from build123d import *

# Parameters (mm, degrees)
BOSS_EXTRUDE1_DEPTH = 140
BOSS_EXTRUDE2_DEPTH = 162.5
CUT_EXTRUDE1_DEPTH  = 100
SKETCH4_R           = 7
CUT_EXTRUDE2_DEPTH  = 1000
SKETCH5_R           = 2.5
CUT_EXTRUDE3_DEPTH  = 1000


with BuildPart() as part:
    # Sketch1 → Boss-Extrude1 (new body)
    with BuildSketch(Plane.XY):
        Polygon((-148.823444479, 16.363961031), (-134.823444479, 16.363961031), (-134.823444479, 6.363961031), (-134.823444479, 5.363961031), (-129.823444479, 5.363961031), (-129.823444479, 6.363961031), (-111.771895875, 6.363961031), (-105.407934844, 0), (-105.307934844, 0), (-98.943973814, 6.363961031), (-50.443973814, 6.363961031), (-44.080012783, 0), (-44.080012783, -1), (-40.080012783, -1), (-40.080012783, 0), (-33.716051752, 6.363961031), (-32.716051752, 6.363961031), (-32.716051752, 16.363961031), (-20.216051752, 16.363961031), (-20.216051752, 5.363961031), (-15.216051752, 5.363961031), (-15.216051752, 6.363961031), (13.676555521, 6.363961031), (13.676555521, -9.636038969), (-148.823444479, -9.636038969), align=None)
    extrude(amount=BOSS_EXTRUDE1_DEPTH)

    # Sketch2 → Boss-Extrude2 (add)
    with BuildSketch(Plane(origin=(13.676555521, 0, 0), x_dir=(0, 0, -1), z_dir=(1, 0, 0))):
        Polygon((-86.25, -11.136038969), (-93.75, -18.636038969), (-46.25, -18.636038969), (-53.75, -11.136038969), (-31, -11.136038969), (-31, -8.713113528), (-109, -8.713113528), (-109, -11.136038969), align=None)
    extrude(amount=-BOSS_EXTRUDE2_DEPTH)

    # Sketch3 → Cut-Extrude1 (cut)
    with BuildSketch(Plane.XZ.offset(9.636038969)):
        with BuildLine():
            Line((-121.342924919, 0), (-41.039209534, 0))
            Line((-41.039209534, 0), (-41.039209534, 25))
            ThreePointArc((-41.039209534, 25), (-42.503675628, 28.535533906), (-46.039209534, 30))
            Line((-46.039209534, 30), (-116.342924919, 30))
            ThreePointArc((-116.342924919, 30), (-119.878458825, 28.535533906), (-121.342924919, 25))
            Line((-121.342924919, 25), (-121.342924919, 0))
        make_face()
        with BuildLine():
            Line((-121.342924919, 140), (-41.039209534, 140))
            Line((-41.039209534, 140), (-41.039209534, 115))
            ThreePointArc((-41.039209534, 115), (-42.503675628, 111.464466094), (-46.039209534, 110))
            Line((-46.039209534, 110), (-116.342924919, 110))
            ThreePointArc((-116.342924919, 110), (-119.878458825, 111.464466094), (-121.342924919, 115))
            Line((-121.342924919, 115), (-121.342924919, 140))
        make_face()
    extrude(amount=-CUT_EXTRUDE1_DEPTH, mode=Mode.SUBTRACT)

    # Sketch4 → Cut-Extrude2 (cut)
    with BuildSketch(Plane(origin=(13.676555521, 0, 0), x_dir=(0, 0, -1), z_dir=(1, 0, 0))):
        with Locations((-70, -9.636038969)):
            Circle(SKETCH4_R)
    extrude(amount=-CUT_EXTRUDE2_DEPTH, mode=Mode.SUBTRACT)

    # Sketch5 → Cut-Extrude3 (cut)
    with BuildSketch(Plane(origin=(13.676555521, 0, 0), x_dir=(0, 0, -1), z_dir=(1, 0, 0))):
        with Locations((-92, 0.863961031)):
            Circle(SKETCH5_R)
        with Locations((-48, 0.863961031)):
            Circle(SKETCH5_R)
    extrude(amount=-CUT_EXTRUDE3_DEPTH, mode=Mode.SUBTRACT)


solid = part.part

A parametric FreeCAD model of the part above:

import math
import FreeCAD as App
import Part
import Sketcher
from FreeCAD import Vector
Q = App.Units.Quantity

doc = App.newDocument("Part")
body = doc.addObject("PartDesign::Body", "Body")

sketch1 = body.newObject("Sketcher::SketchObject", "Sketch")
sketch1.AttachmentSupport = (doc.getObject("XY_Plane"), [""])
sketch1.MapMode = "FlatFace"
sketch1.addGeometry([
    Part.LineSegment(Vector(-134.82, 16.36, 0), Vector(-148.82, 16.36, 0)),
    Part.LineSegment(Vector(-148.82, 16.36, 0), Vector(-148.82, -9.64, 0)),
    Part.LineSegment(Vector(-148.82, -9.64, 0), Vector(13.68, -9.64, 0)),
    Part.LineSegment(Vector(13.68, -9.64, 0), Vector(13.68, 6.36, 0)),
    Part.LineSegment(Vector(13.68, 6.36, 0), Vector(-15.22, 6.36, 0)),
    Part.LineSegment(Vector(-15.22, 6.36, 0), Vector(-15.22, 5.36, 0)),
    Part.LineSegment(Vector(-15.22, 5.36, 0), Vector(-20.22, 5.36, 0)),
    Part.LineSegment(Vector(-20.22, 5.36, 0), Vector(-20.22, 16.36, 0)),
    Part.LineSegment(Vector(-20.22, 16.36, 0), Vector(-32.72, 16.36, 0)),
    Part.LineSegment(Vector(-32.72, 16.36, 0), Vector(-32.72, 6.36, 0)),
    Part.LineSegment(Vector(-32.72, 6.36, 0), Vector(-33.72, 6.36, 0)),
    Part.LineSegment(Vector(-33.72, 6.36, 0), Vector(-40.08, 0, 0)),
    Part.LineSegment(Vector(-40.08, 0, 0), Vector(-40.08, -1, 0)),
    Part.LineSegment(Vector(-40.08, -1, 0), Vector(-44.08, -1, 0)),
    Part.LineSegment(Vector(-44.08, -1, 0), Vector(-44.08, 0, 0)),
    Part.LineSegment(Vector(-44.08, 0, 0), Vector(-50.44, 6.36, 0)),
    Part.LineSegment(Vector(-50.44, 6.36, 0), Vector(-98.94, 6.36, 0)),
    Part.LineSegment(Vector(-98.94, 6.36, 0), Vector(-105.31, 0, 0)),
    Part.LineSegment(Vector(-105.31, 0, 0), Vector(-105.41, 0, 0)),
    Part.LineSegment(Vector(-105.41, 0, 0), Vector(-111.77, 6.36, 0)),
    Part.LineSegment(Vector(-111.77, 6.36, 0), Vector(-129.82, 6.36, 0)),
    Part.LineSegment(Vector(-129.82, 6.36, 0), Vector(-129.82, 5.36, 0)),
    Part.LineSegment(Vector(-129.82, 5.36, 0), Vector(-134.82, 5.36, 0)),
    Part.LineSegment(Vector(-134.82, 5.36, 0), Vector(-134.82, 16.36, 0)),
], False)
sketch1.addConstraint([
    Sketcher.Constraint("Coincident", 0, 2, 1, 1),
    Sketcher.Constraint("Coincident", 1, 2, 2, 1),
    Sketcher.Constraint("Coincident", 2, 2, 3, 1),
    Sketcher.Constraint("Coincident", 3, 2, 4, 1),
    Sketcher.Constraint("Coincident", 4, 2, 5, 1),
    Sketcher.Constraint("Coincident", 5, 2, 6, 1),
    Sketcher.Constraint("Coincident", 6, 2, 7, 1),
    Sketcher.Constraint("Coincident", 7, 2, 8, 1),
    Sketcher.Constraint("Coincident", 8, 2, 9, 1),
    Sketcher.Constraint("Coincident", 9, 2, 10, 1),
    Sketcher.Constraint("Coincident", 10, 2, 11, 1),
    Sketcher.Constraint("Coincident", 11, 2, 12, 1),
    Sketcher.Constraint("Coincident", 12, 2, 13, 1),
    Sketcher.Constraint("Coincident", 13, 2, 14, 1),
    Sketcher.Constraint("Coincident", 14, 2, 15, 1),
    Sketcher.Constraint("Coincident", 15, 2, 16, 1),
    Sketcher.Constraint("Coincident", 16, 2, 17, 1),
    Sketcher.Constraint("Coincident", 17, 2, 18, 1),
    Sketcher.Constraint("Coincident", 18, 2, 19, 1),
    Sketcher.Constraint("Coincident", 19, 2, 20, 1),
    Sketcher.Constraint("Coincident", 20, 2, 21, 1),
    Sketcher.Constraint("Coincident", 21, 2, 22, 1),
    Sketcher.Constraint("Coincident", 22, 2, 23, 1),
    Sketcher.Constraint("Coincident", 23, 2, 0, 1),
    Sketcher.Constraint("Horizontal", 0),
    Sketcher.Constraint("Vertical", 1),
    Sketcher.Constraint("Horizontal", 2),
    Sketcher.Constraint("Vertical", 3),
    Sketcher.Constraint("Horizontal", 4),
    Sketcher.Constraint("Vertical", 5),
    Sketcher.Constraint("Horizontal", 6),
    Sketcher.Constraint("Vertical", 7),
    Sketcher.Constraint("Horizontal", 8),
    Sketcher.Constraint("Vertical", 9),
    Sketcher.Constraint("Horizontal", 10),
    Sketcher.Constraint("Vertical", 12),
    Sketcher.Constraint("Horizontal", 13),
    Sketcher.Constraint("Vertical", 14),
    Sketcher.Constraint("Horizontal", 16),
    Sketcher.Constraint("Horizontal", 18),
    Sketcher.Constraint("Horizontal", 20),
    Sketcher.Constraint("Vertical", 21),
    Sketcher.Constraint("Horizontal", 22),
    Sketcher.Constraint("Vertical", 23),
    Sketcher.Constraint("PointOnObject", 11, 2, -1),
    Sketcher.Constraint("PointOnObject", 14, 2, -1),
    Sketcher.Constraint("PointOnObject", 17, 2, -1),
    Sketcher.Constraint("Perpendicular", 11, 15),
    Sketcher.Constraint("Perpendicular", 15, 17),
    Sketcher.Constraint("Perpendicular", 17, 19),
    Sketcher.Constraint("Horizontal", 0, 2, 7, 2),
    Sketcher.Constraint("Horizontal", 4, 2, 9, 2),
    Sketcher.Constraint("Horizontal", 10, 2, 15, 2),
    Sketcher.Constraint("Horizontal", 16, 2, 19, 2),
    Sketcher.Constraint("Horizontal", 6, 2, 21, 2),
    Sketcher.Constraint("Equal", 6, 22),
    Sketcher.Constraint("Equal", 10, 5),
    Sketcher.Constraint("Equal", 5, 12),
    Sketcher.Constraint("Equal", 11, 15),
    Sketcher.Constraint("DistanceX", 0, 2, 0, 1, Q("14 mm")),
    Sketcher.Constraint("DistanceX", 6, 2, 6, 1, Q("5 mm")),
    Sketcher.Constraint("DistanceX", 10, 2, 10, 1, Q("1 mm")),
    Sketcher.Constraint("DistanceX", 13, 2, 13, 1, Q("4 mm")),
    Sketcher.Constraint("DistanceY", 1, 2, 1, 1, Q("26 mm")),
    Sketcher.Constraint("DistanceY", 3, 1, 3, 2, Q("16 mm")),
    Sketcher.Constraint("Distance", 11, Q("9 mm")),
    Sketcher.Constraint("DistanceX", 2, 1, 2, 2, Q("162.5 mm")),
    Sketcher.Constraint("DistanceX", 8, 2, 8, 1, Q("12.5 mm")),
    Sketcher.Constraint("DistanceX", 16, 2, 16, 1, Q("48.5 mm")),
    Sketcher.Constraint("DistanceX", 18, 2, 18, 1, Q("0.1 mm")),
    Sketcher.Constraint("DistanceX", 20, 2, 20, 1, Q("18.051549 mm")),
    Sketcher.Constraint("DistanceX", 4, 2, -1, 1, Q("15.216052 mm")),
])
pad1 = body.newObject("PartDesign::Pad", "Pad")
pad1.Profile = sketch1
pad1.Length = 140

sketch2 = body.newObject("Sketcher::SketchObject", "Sketch001")
sketch2.AttachmentSupport = (doc.getObject("YZ_Plane"), [""])
sketch2.MapMode = "FlatFace"
sketch2.AttachmentOffset = App.Placement(Vector(0, 0, 13.676556), App.Rotation())
sketch2.addGeometry([
    Part.LineSegment(Vector(-11.1, 86.2, 0), Vector(-18.6, 93.8, 0)),
    Part.LineSegment(Vector(-18.6, 93.8, 0), Vector(-18.6, 46.2, 0)),
    Part.LineSegment(Vector(-18.6, 46.2, 0), Vector(-11.1, 53.8, 0)),
    Part.LineSegment(Vector(-11.1, 53.8, 0), Vector(-11.1, 31, 0)),
    Part.LineSegment(Vector(-11.1, 31, 0), Vector(-8.7, 31, 0)),
    Part.LineSegment(Vector(-8.7, 31, 0), Vector(-8.7, 109, 0)),
    Part.LineSegment(Vector(-8.7, 109, 0), Vector(-11.1, 109, 0)),
    Part.LineSegment(Vector(-11.1, 109, 0), Vector(-11.1, 86.2, 0)),
], False)
sketch2.addConstraint([
    Sketcher.Constraint("Coincident", 0, 2, 1, 1),
    Sketcher.Constraint("Coincident", 1, 2, 2, 1),
    Sketcher.Constraint("Coincident", 2, 2, 3, 1),
    Sketcher.Constraint("Coincident", 3, 2, 4, 1),
    Sketcher.Constraint("Coincident", 4, 2, 5, 1),
    Sketcher.Constraint("Coincident", 5, 2, 6, 1),
    Sketcher.Constraint("Coincident", 6, 2, 7, 1),
    Sketcher.Constraint("Coincident", 7, 2, 0, 1),
    Sketcher.Constraint("Vertical", 1),
    Sketcher.Constraint("Vertical", 3),
    Sketcher.Constraint("Horizontal", 4),
    Sketcher.Constraint("Vertical", 5),
    Sketcher.Constraint("Horizontal", 6),
    Sketcher.Constraint("Vertical", 7),
    Sketcher.Constraint("Perpendicular", 0, 2),
    Sketcher.Constraint("Vertical", 3, 2, 6, 2),
    Sketcher.Constraint("Equal", 3, 7),
    Sketcher.Constraint("Equal", 0, 2),
    Sketcher.Constraint("DistanceY", 5, 1, 5, 2, Q("78 mm")),
    Sketcher.Constraint("DistanceY", 1, 2, 1, 1, Q("47.5 mm")),
    Sketcher.Constraint("DistanceY", -1, 1, 3, 2, Q("31 mm")),
    Sketcher.Constraint("DistanceY", 2, 2, 0, 2, Q("40 mm")),
    Sketcher.Constraint("DistanceX", 4, 1, 4, 2, Q("2.422925 mm")),
    Sketcher.Constraint("DistanceX", 0, 2, -1, 1, Q("18.636039 mm")),
])
pad2 = body.newObject("PartDesign::Pad", "Pad001")
pad2.Profile = sketch2
pad2.Length = 162.5
pad2.Reversed = True

sketch3 = body.newObject("Sketcher::SketchObject", "Sketch002")
sketch3.AttachmentSupport = (doc.getObject("XZ_Plane"), [""])
sketch3.MapMode = "FlatFace"
sketch3.AttachmentOffset = App.Placement(Vector(0, 0, 9.636039), App.Rotation())
sketch3.addGeometry([
    Part.LineSegment(Vector(-121, 0, 0), Vector(-41, 0, 0)),
    Part.LineSegment(Vector(-41, 0, 0), Vector(-41, 25, 0)),
    Part.ArcOfCircle(Part.Circle(Vector(-46, 25, 0), Vector(0, 0, 1), 5), math.radians(0), math.radians(90)),
    Part.LineSegment(Vector(-46, 30, 0), Vector(-116, 30, 0)),
    Part.ArcOfCircle(Part.Circle(Vector(-116, 25, 0), Vector(0, 0, 1), 5), math.radians(90), math.radians(180)),
    Part.LineSegment(Vector(-121, 25, 0), Vector(-121, 0, 0)),
    Part.LineSegment(Vector(-41, 140, 0), Vector(-121, 140, 0)),
    Part.LineSegment(Vector(-121, 140, 0), Vector(-121, 115, 0)),
    Part.ArcOfCircle(Part.Circle(Vector(-116, 115, 0), Vector(0, 0, 1), 5), math.radians(180), math.radians(270)),
    Part.LineSegment(Vector(-116, 110, 0), Vector(-46, 110, 0)),
    Part.ArcOfCircle(Part.Circle(Vector(-46, 115, 0), Vector(0, 0, 1), 5), math.radians(-90), math.radians(0)),
    Part.LineSegment(Vector(-41, 115, 0), Vector(-41, 140, 0)),
], False)
sketch3.addConstraint([
    Sketcher.Constraint("Coincident", 0, 2, 1, 1),
    Sketcher.Constraint("Tangent", 1, 2, 2, 1),
    Sketcher.Constraint("Tangent", 2, 2, 3, 1),
    Sketcher.Constraint("Tangent", 3, 2, 4, 1),
    Sketcher.Constraint("Tangent", 4, 2, 5, 1),
    Sketcher.Constraint("Coincident", 5, 2, 0, 1),
    Sketcher.Constraint("Coincident", 6, 2, 7, 1),
    Sketcher.Constraint("Tangent", 7, 2, 8, 1),
    Sketcher.Constraint("Tangent", 8, 2, 9, 1),
    Sketcher.Constraint("Tangent", 9, 2, 10, 1),
    Sketcher.Constraint("Tangent", 10, 2, 11, 1),
    Sketcher.Constraint("Coincident", 11, 2, 6, 1),
    Sketcher.Constraint("Horizontal", 0),
    Sketcher.Constraint("Vertical", 1),
    Sketcher.Constraint("Horizontal", 3),
    Sketcher.Constraint("Vertical", 5),
    Sketcher.Constraint("Horizontal", 6),
    Sketcher.Constraint("Vertical", 7),
    Sketcher.Constraint("Horizontal", 9),
    Sketcher.Constraint("Vertical", 11),
    Sketcher.Constraint("Equal", 2, 4),
    Sketcher.Constraint("Equal", 4, 8),
    Sketcher.Constraint("Equal", 8, 10),
    Sketcher.Constraint("PointOnObject", 0, 2, -1),
    Sketcher.Constraint("Vertical", 4, 3, 8, 3),
    Sketcher.Constraint("Vertical", 2, 3, 10, 3),
    Sketcher.Constraint("Equal", 5, 7),
    Sketcher.Constraint("Radius", 2, Q("5 mm")),
    Sketcher.Constraint("DistanceY", 1, 1, 1, 2, Q("25 mm")),
    Sketcher.Constraint("DistanceY", -1, 1, 8, 3, Q("115 mm")),
    Sketcher.Constraint("DistanceX", 0, 1, 0, 2, Q("80.303715 mm")),
    Sketcher.Constraint("DistanceX", 2, 3, -1, 1, Q("46.03921 mm")),
])
pocket1 = body.newObject("PartDesign::Pocket", "Pocket")
pocket1.Profile = sketch3
pocket1.Length = 100

sketch4 = body.newObject("Sketcher::SketchObject", "Sketch003")
sketch4.AttachmentSupport = (doc.getObject("YZ_Plane"), [""])
sketch4.MapMode = "FlatFace"
sketch4.AttachmentOffset = App.Placement(Vector(0, 0, 13.676556), App.Rotation())
sketch4.addGeometry(Part.Circle(Vector(-10, 70, 0), Vector(0, 0, 1), 7), False)
sketch4.addConstraint([
    Sketcher.Constraint("Diameter", 0, Q("14 mm")),
    Sketcher.Constraint("DistanceY", -1, 1, 0, 3, Q("70 mm")),
    Sketcher.Constraint("DistanceX", 0, 3, -1, 1, Q("9.636039 mm")),
])
pocket2 = body.newObject("PartDesign::Pocket", "Pocket001")
pocket2.Profile = sketch4
pocket2.Length = 1000

sketch5 = body.newObject("Sketcher::SketchObject", "Sketch004")
sketch5.AttachmentSupport = (doc.getObject("YZ_Plane"), [""])
sketch5.MapMode = "FlatFace"
sketch5.AttachmentOffset = App.Placement(Vector(0, 0, 13.676556), App.Rotation())
sketch5.addGeometry([
    Part.Circle(Vector(0.9, 92, 0), Vector(0, 0, 1), 2.5),
    Part.Circle(Vector(0.9, 48, 0), Vector(0, 0, 1), 2.5),
], False)
sketch5.addConstraint([
    Sketcher.Constraint("Equal", 0, 1),
    Sketcher.Constraint("Vertical", 0, 3, 1, 3),
    Sketcher.Constraint("Diameter", 0, Q("5 mm")),
    Sketcher.Constraint("DistanceY", -1, 1, 0, 3, Q("92 mm")),
    Sketcher.Constraint("DistanceY", -1, 1, 1, 3, Q("48 mm")),
    Sketcher.Constraint("DistanceX", -1, 1, 0, 3, Q("0.863961 mm")),
])
pocket3 = body.newObject("PartDesign::Pocket", "Pocket002")
pocket3.Profile = sketch5
pocket3.Length = 1000

doc.recompute()
